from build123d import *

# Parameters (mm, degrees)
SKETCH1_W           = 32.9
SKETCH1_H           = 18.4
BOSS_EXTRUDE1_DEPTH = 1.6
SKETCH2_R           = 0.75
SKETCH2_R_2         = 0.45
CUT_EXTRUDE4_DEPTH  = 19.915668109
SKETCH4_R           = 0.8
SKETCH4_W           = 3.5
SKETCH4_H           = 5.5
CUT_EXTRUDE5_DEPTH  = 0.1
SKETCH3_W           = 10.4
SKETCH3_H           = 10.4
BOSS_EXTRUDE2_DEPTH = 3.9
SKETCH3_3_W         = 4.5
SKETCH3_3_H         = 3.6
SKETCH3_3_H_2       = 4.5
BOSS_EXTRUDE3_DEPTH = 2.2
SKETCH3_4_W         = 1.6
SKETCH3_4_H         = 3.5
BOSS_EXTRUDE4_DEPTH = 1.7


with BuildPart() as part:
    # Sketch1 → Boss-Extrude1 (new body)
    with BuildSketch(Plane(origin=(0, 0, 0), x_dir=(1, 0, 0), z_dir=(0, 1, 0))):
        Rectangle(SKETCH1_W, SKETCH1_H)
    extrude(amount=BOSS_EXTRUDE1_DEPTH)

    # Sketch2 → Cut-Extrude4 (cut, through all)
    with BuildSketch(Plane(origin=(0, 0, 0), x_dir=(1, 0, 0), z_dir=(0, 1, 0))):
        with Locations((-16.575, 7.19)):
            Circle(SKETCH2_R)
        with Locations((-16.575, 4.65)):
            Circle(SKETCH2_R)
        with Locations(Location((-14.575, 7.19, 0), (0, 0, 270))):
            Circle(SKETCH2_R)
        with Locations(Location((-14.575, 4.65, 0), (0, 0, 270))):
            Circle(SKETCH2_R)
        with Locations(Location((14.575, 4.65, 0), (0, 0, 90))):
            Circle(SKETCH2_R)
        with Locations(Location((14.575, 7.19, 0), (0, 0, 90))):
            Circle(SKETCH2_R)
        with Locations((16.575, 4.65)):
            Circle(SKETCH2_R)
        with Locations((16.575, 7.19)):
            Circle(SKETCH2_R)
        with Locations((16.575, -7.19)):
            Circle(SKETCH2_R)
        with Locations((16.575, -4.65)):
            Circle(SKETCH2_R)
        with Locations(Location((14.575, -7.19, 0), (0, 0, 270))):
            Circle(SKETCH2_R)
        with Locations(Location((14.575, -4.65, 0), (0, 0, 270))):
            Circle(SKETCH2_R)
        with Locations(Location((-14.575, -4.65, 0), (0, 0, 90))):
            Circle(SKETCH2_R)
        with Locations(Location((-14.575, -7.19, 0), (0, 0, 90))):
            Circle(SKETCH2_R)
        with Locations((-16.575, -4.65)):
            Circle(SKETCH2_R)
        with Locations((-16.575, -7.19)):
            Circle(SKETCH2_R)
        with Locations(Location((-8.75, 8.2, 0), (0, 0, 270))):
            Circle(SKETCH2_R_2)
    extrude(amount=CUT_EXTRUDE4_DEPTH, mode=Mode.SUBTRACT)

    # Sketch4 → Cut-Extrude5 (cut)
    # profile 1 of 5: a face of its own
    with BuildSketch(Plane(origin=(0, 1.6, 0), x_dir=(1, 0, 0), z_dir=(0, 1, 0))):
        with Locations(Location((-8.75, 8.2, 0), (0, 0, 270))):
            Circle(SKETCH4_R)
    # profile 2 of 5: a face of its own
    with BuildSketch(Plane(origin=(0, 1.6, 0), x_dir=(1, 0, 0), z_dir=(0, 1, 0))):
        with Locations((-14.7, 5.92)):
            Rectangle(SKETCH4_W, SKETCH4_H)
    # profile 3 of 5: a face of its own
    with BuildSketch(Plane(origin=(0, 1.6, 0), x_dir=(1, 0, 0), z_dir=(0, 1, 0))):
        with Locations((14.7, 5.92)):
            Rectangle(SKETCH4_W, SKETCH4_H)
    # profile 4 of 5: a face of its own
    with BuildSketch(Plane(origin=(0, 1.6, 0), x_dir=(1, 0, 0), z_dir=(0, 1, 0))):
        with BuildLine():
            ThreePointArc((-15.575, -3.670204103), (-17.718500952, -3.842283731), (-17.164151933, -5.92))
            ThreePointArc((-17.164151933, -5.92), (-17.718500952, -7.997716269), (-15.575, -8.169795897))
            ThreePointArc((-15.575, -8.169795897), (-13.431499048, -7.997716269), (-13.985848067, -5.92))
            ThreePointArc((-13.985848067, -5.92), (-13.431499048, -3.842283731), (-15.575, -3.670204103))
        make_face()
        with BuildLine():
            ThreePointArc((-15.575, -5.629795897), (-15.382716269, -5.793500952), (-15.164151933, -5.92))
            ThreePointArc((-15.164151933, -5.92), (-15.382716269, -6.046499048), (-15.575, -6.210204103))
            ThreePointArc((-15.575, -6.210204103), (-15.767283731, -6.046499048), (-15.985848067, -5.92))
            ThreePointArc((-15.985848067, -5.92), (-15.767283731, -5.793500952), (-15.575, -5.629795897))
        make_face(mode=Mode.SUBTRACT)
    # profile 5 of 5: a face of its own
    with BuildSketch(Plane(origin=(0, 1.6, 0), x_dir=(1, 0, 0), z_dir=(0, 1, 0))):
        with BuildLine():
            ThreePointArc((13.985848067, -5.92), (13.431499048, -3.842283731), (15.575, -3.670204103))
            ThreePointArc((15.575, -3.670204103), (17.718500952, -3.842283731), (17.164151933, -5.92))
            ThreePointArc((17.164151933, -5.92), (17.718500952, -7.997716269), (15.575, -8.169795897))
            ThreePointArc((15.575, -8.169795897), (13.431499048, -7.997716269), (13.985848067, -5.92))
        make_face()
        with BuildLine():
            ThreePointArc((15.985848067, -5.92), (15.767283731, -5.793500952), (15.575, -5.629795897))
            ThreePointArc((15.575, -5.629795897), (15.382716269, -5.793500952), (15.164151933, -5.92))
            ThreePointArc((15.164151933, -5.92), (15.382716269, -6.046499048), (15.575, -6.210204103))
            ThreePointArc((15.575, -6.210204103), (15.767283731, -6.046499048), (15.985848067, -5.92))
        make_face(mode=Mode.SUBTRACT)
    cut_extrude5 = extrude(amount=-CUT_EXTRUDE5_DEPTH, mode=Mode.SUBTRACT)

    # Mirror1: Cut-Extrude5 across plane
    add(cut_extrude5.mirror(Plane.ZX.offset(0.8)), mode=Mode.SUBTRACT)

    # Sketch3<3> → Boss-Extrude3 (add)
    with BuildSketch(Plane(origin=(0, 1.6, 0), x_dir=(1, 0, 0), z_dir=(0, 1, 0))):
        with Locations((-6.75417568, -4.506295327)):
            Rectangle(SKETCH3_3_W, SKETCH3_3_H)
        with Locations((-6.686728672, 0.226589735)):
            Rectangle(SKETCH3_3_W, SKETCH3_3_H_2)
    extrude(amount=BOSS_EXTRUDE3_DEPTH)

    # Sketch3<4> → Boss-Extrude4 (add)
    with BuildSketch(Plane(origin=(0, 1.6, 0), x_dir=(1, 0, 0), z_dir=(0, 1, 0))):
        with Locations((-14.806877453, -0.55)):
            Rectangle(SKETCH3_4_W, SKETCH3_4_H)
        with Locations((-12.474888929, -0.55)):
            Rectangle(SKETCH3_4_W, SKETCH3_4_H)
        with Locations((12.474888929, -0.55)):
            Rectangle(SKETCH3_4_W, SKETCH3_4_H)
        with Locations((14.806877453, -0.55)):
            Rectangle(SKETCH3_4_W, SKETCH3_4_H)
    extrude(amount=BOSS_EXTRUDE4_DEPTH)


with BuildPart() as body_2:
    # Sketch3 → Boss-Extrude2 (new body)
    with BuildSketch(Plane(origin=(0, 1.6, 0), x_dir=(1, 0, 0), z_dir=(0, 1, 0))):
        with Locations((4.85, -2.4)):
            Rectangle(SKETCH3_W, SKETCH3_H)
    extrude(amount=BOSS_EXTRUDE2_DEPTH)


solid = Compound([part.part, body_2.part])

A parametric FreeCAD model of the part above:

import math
import FreeCAD as App
import Part
import Sketcher
Q = App.Units.Quantity


def add_polygon(sketch, points):
    """Adds a closed chain of lines whose ends are joined by coincident constraints."""
    first, n = sketch.GeometryCount, len(points)
    for a, b in zip(points, points[1:] + points[:1]):
        sketch.addGeometry(Part.LineSegment(App.Vector(*a, 0), App.Vector(*b, 0)), False)
    for i in range(n):
        sketch.addConstraint(Sketcher.Constraint("Coincident", first + i, 2, first + (i + 1) % n, 1))

doc = App.newDocument("Part")
body = doc.addObject("PartDesign::Body", "Body")

# Sketch on XZ plane
sketch1 = doc.addObject("Sketcher::SketchObject", "Sketch")
body.addObject(sketch1)
sketch1.AttachmentSupport = (doc.XZ_Plane, [""])
sketch1.MapMode = "FlatFace"
add_polygon(sketch1, [(-16, -9), (-16, 9), (16, 9), (16, -9)])  # lines 0-3
sketch1.addConstraint([
    Sketcher.Constraint("Vertical", 0),
    Sketcher.Constraint("Horizontal", 1),
    Sketcher.Constraint("Vertical", 2),
    Sketcher.Constraint("Horizontal", 3),
    Sketcher.Constraint("Symmetric", 0, 2, 2, 2, -1, 1),
    Sketcher.Constraint("DistanceX", 1, 1, 1, 2, Q("32.9 mm")),
    Sketcher.Constraint("DistanceY", 0, 1, 0, 2, Q("18.4 mm")),
])
pad1 = doc.addObject("PartDesign::Pad", "Pad")
body.addObject(pad1)
pad1.Profile = sketch1
pad1.Length = 1.6
pad1.Reversed = True

# Sketch on XZ plane
sketch2 = doc.addObject("Sketcher::SketchObject", "Sketch001")
body.addObject(sketch2)
sketch2.AttachmentSupport = (doc.XZ_Plane, [""])
sketch2.MapMode = "FlatFace"
sketch2.addGeometry([
    Part.Circle(App.Vector(-16.57, -7.19, 0), App.Vector(0, 0, 1), 0.75),  # 0
    Part.Circle(App.Vector(-16.57, -4.65, 0), App.Vector(0, 0, 1), 0.75),  # 1
    Part.Circle(App.Vector(-14.57, -7.19, 0), App.Vector(0, 0, 1), 0.75),  # 2
    Part.Circle(App.Vector(-14.57, -4.65, 0), App.Vector(0, 0, 1), 0.75),  # 3
    Part.Circle(App.Vector(14.57, -4.65, 0), App.Vector(0, 0, 1), 0.75),  # 4
    Part.Circle(App.Vector(14.57, -7.19, 0), App.Vector(0, 0, 1), 0.75),  # 5
    Part.Circle(App.Vector(16.57, -4.65, 0), App.Vector(0, 0, 1), 0.75),  # 6
    Part.Circle(App.Vector(16.57, -7.19, 0), App.Vector(0, 0, 1), 0.75),  # 7
    Part.Circle(App.Vector(16.57, 7.19, 0), App.Vector(0, 0, 1), 0.75),  # 8
    Part.Circle(App.Vector(16.57, 4.65, 0), App.Vector(0, 0, 1), 0.75),  # 9
    Part.Circle(App.Vector(14.57, 7.19, 0), App.Vector(0, 0, 1), 0.75),  # 10
    Part.Circle(App.Vector(14.57, 4.65, 0), App.Vector(0, 0, 1), 0.75),  # 11
    Part.Circle(App.Vector(-14.57, 4.65, 0), App.Vector(0, 0, 1), 0.75),  # 12
    Part.Circle(App.Vector(-14.57, 7.19, 0), App.Vector(0, 0, 1), 0.75),  # 13
    Part.Circle(App.Vector(-16.57, 4.65, 0), App.Vector(0, 0, 1), 0.75),  # 14
    Part.Circle(App.Vector(-16.57, 7.19, 0), App.Vector(0, 0, 1), 0.75),  # 15
    Part.Circle(App.Vector(-8.75, -8.2, 0), App.Vector(0, 0, 1), 0.45),  # 16
], False)
sketch2.addConstraint([
    Sketcher.Constraint("Equal", 0, 1),
    Sketcher.Constraint("Equal", 1, 2),
    Sketcher.Constraint("Equal", 2, 3),
    Sketcher.Constraint("Equal", 3, 4),
    Sketcher.Constraint("Equal", 4, 5),
    Sketcher.Constraint("Equal", 5, 6),
    Sketcher.Constraint("Equal", 6, 7),
    Sketcher.Constraint("Equal", 7, 8),
    Sketcher.Constraint("Equal", 8, 9),
    Sketcher.Constraint("Equal", 9, 10),
    Sketcher.Constraint("Equal", 10, 11),
    Sketcher.Constraint("Equal", 11, 12),
    Sketcher.Constraint("Equal", 12, 13),
    Sketcher.Constraint("Equal", 13, 14),
    Sketcher.Constraint("Equal", 14, 15),
    Sketcher.Constraint("Symmetric", 0, 3, 8, 3, -1, 1),
    Sketcher.Constraint("Symmetric", 1, 3, 9, 3, -1, 1),
    Sketcher.Constraint("Symmetric", 2, 3, 10, 3, -1, 1),
    Sketcher.Constraint("Symmetric", 3, 3, 11, 3, -1, 1),
    Sketcher.Constraint("Symmetric", 4, 3, 12, 3, -1, 1),
    Sketcher.Constraint("Symmetric", 5, 3, 13, 3, -1, 1),
    Sketcher.Constraint("Symmetric", 6, 3, 14, 3, -1, 1),
    Sketcher.Constraint("Symmetric", 7, 3, 15, 3, -1, 1),
    Sketcher.Constraint("Symmetric", 3, 3, 4, 3, -2),
    Sketcher.Constraint("Symmetric", 2, 3, 5, 3, -2),
    Sketcher.Constraint("Symmetric", 1, 3, 6, 3, -2),
    Sketcher.Constraint("Symmetric", 0, 3, 7, 3, -2),
    Sketcher.Constraint("Horizontal", 0, 3, 2, 3),
    Sketcher.Constraint("Horizontal", 1, 3, 3, 3),
    Sketcher.Constraint("Vertical", 0, 3, 1, 3),
    Sketcher.Constraint("Vertical", 2, 3, 3, 3),
    Sketcher.Constraint("Diameter", 0, Q("1.5 mm")),
    Sketcher.Constraint("Diameter", 16, Q("0.9 mm")),
    Sketcher.Constraint("DistanceX", 0, 3, 2, 3, Q("2 mm")),
    Sketcher.Constraint("DistanceY", 16, 3, -1, 1, Q("8.2 mm")),
    Sketcher.Constraint("DistanceY", 6, 3, 9, 3, Q("9.3 mm")),
    Sketcher.Constraint("DistanceY", 0, 3, -1, 1, Q("7.19 mm")),
    Sketcher.Constraint("DistanceX", 16, 3, -1, 1, Q("8.75 mm")),
    Sketcher.Constraint("DistanceX", 3, 3, 4, 3, Q("29.15 mm")),
])
pocket1 = doc.addObject("PartDesign::Pocket", "Pocket")
body.addObject(pocket1)
pocket1.Profile = sketch2
pocket1.Type = "ThroughAll"

# Sketch on XZ plane
sketch3 = doc.addObject("Sketcher::SketchObject", "Sketch002")
body.addObject(sketch3)
sketch3.AttachmentSupport = (doc.XZ_Plane, [""])
sketch3.MapMode = "FlatFace"
sketch3.AttachmentOffset = App.Placement(App.Vector(0, 0, -1.6), App.Rotation())
sketch3.addGeometry(Part.Circle(App.Vector(-8.8, -8.2, 0), App.Vector(0, 0, 1), 0.8), False)  # 0
add_polygon(sketch3, [(-16.4, -8.7), (-16.4, -3.2), (-12.9, -3.2), (-12.9, -8.7)])  # lines 1-4
add_polygon(sketch3, [(12.9, -8.7), (12.9, -3.2), (16.4, -3.2), (16.4, -8.7)])  # lines 5-8
sketch3.addGeometry(Part.ArcOfCircle(Part.Circle(App.Vector(-16.6, 4.7, 0), App.Vector(0, 0, 1), 1.4), math.radians(115), math.radians(316)), False)  # 9
sketch3.addGeometry(Part.ArcOfCircle(Part.Circle(App.Vector(-16.6, 7.2, 0), App.Vector(0, 0, 1), 1.4), math.radians(44), math.radians(245)), False)  # 10
sketch3.addGeometry(Part.ArcOfCircle(Part.Circle(App.Vector(-14.6, 7.2, 0), App.Vector(0, 0, 1), 1.4), math.radians(-65), math.radians(136)), False)  # 11
sketch3.addGeometry(Part.ArcOfCircle(Part.Circle(App.Vector(-14.6, 4.7, 0), App.Vector(0, 0, 1), 1.4), math.radians(-136), math.radians(65)), False)  # 12
sketch3.addGeometry(Part.ArcOfCircle(Part.Circle(App.Vector(-16.6, 4.6, 0), App.Vector(0, 0, 1), 1.4), math.radians(44), math.radians(65)), False)  # 13
sketch3.addGeometry(Part.ArcOfCircle(Part.Circle(App.Vector(-14.6, 4.6, 0), App.Vector(0, 0, 1), 1.4), math.radians(115), math.radians(136)), False)  # 14
sketch3.addGeometry(Part.ArcOfCircle(Part.Circle(App.Vector(-14.6, 7.2, 0), App.Vector(0, 0, 1), 1.4), math.radians(-136), math.radians(-115)), False)  # 15
sketch3.addGeometry(Part.ArcOfCircle(Part.Circle(App.Vector(-16.6, 7.2, 0), App.Vector(0, 0, 1), 1.4), math.radians(-65), math.radians(-44)), False)  # 16
sketch3.addGeometry(Part.ArcOfCircle(Part.Circle(App.Vector(14.6, 4.7, 0), App.Vector(0, 0, 1), 1.4), math.radians(115), math.radians(316)), False)  # 17
sketch3.addGeometry(Part.ArcOfCircle(Part.Circle(App.Vector(14.6, 7.2, 0), App.Vector(0, 0, 1), 1.4), math.radians(44), math.radians(245)), False)  # 18
sketch3.addGeometry(Part.ArcOfCircle(Part.Circle(App.Vector(16.6, 7.2, 0), App.Vector(0, 0, 1), 1.4), math.radians(-65), math.radians(136)), False)  # 19
sketch3.addGeometry(Part.ArcOfCircle(Part.Circle(App.Vector(16.6, 4.7, 0), App.Vector(0, 0, 1), 1.4), math.radians(-136), math.radians(65)), False)  # 20
sketch3.addGeometry(Part.ArcOfCircle(Part.Circle(App.Vector(16.6, 7.2, 0), App.Vector(0, 0, 1), 1.4), math.radians(-136), math.radians(-115)), False)  # 21
sketch3.addGeometry(Part.ArcOfCircle(Part.Circle(App.Vector(14.6, 7.2, 0), App.Vector(0, 0, 1), 1.4), math.radians(-65), math.radians(-44)), False)  # 22
sketch3.addGeometry(Part.ArcOfCircle(Part.Circle(App.Vector(14.6, 4.6, 0), App.Vector(0, 0, 1), 1.4), math.radians(44), math.radians(65)), False)  # 23
sketch3.addGeometry(Part.ArcOfCircle(Part.Circle(App.Vector(16.6, 4.6, 0), App.Vector(0, 0, 1), 1.4), math.radians(115), math.radians(136)), False)  # 24
sketch3.addConstraint([
    Sketcher.Constraint("Coincident", 9, 1, 10, 2),
    Sketcher.Constraint("Coincident", 10, 1, 11, 2),
    Sketcher.Constraint("Coincident", 11, 1, 12, 2),
    Sketcher.Constraint("Coincident", 12, 1, 9, 2),
    Sketcher.Constraint("Coincident", 13, 1, 14, 2),
    Sketcher.Constraint("Coincident", 14, 1, 15, 2),
    Sketcher.Constraint("Coincident", 15, 1, 16, 2),
    Sketcher.Constraint("Coincident", 16, 1, 13, 2),
    Sketcher.Constraint("Coincident", 17, 1, 18, 2),
    Sketcher.Constraint("Coincident", 18, 1, 19, 2),
    Sketcher.Constraint("Coincident", 19, 1, 20, 2),
    Sketcher.Constraint("Coincident", 20, 1, 17, 2),
    Sketcher.Constraint("Coincident", 21, 1, 22, 2),
    Sketcher.Constraint("Coincident", 22, 1, 23, 2),
    Sketcher.Constraint("Coincident", 23, 1, 24, 2),
    Sketcher.Constraint("Coincident", 24, 1, 21, 2),
    Sketcher.Constraint("Vertical", 1),
    Sketcher.Constraint("Horizontal", 2),
    Sketcher.Constraint("Vertical", 3),
    Sketcher.Constraint("Horizontal", 4),
    Sketcher.Constraint("Vertical", 5),
    Sketcher.Constraint("Horizontal", 6),
    Sketcher.Constraint("Vertical", 7),
    Sketcher.Constraint("Horizontal", 8),
    Sketcher.Constraint("Coincident", 13, 3, 9, 3),
    Sketcher.Constraint("Coincident", 14, 3, 12, 3),
    Sketcher.Constraint("Coincident", 15, 3, 11, 3),
    Sketcher.Constraint("Coincident", 16, 3, 10, 3),
    Sketcher.Constraint("Coincident", 21, 3, 19, 3),
    Sketcher.Constraint("Coincident", 22, 3, 18, 3),
    Sketcher.Constraint("Coincident", 23, 3, 17, 3),
    Sketcher.Constraint("Coincident", 24, 3, 20, 3),
    Sketcher.Constraint("Equal", 9, 10),
    Sketcher.Constraint("Equal", 10, 11),
    Sketcher.Constraint("Equal", 11, 12),
    Sketcher.Constraint("Equal", 12, 13),
    Sketcher.Constraint("Equal", 13, 14),
    Sketcher.Constraint("Equal", 14, 15),
    Sketcher.Constraint("Equal", 15, 16),
    Sketcher.Constraint("Equal", 16, 17),
    Sketcher.Constraint("Equal", 17, 18),
    Sketcher.Constraint("Equal", 18, 19),
    Sketcher.Constraint("Equal", 19, 20),
    Sketcher.Constraint("Equal", 20, 21),
    Sketcher.Constraint("Equal", 21, 22),
    Sketcher.Constraint("Equal", 22, 23),
    Sketcher.Constraint("Equal", 23, 24),
    Sketcher.Constraint("Symmetric", 12, 3, 17, 3, -2),
    Sketcher.Constraint("Symmetric", 11, 3, 18, 3, -2),
    Sketcher.Constraint("Symmetric", 10, 3, 19, 3, -2),
    Sketcher.Constraint("Symmetric", 9, 3, 20, 3, -2),
    Sketcher.Constraint("Symmetric", 2, 2, 5, 2, -2),
    Sketcher.Constraint("Symmetric", 4, 2, 7, 2, -2),
    Sketcher.Constraint("Horizontal", 10, 3, 11, 3),
    Sketcher.Constraint("Horizontal", 9, 3, 12, 3),
    Sketcher.Constraint("Horizontal", 9, 1, 11, 1),
    Sketcher.Constraint("Horizontal", 11, 1, 14, 1),
    Sketcher.Constraint("Diameter", 0, Q("1.6 mm")),
    Sketcher.Constraint("Radius", 9, Q("1.4 mm")),
    Sketcher.Constraint("DistanceX", 2, 1, 2, 2, Q("3.5 mm")),
    Sketcher.Constraint("DistanceY", 1, 1, 1, 2, Q("5.5 mm")),
    Sketcher.Constraint("DistanceX", 10, 3, 11, 3, Q("2 mm")),
    Sketcher.Constraint("DistanceY", 0, 3, -1, 1, Q("8.2 mm")),
    Sketcher.Constraint("DistanceX", 1, 2, 0, 3, Q("7.7 mm")),
    Sketcher.Constraint("DistanceX", 0, 3, -1, 1, Q("8.75 mm")),
    Sketcher.Constraint("DistanceY", -1, 1, 9, 3, Q("4.65 mm")),
    Sketcher.Constraint("DistanceY", -1, 1, 10, 3, Q("7.19 mm")),
    Sketcher.Constraint("DistanceY", 1, 2, -1, 1, Q("3.17 mm")),
    Sketcher.Constraint("DistanceX", 14, 3, 17, 3, Q("29.15 mm")),
])
pocket2 = doc.addObject("PartDesign::Pocket", "Pocket001")
body.addObject(pocket2)
pocket2.Profile = sketch3
pocket2.Length = 0.1
pocket2.Reversed = True
doc.recompute()

datumplane = doc.addObject("PartDesign::Plane", "DatumPlane")
body.addObject(datumplane)
datumplane.AttachmentSupport = (doc.XZ_Plane, [""])
datumplane.MapMode = "FlatFace"
datumplane.AttachmentOffset = App.Placement(App.Vector(0, 0, -0.8), App.Rotation())
mirrored = doc.addObject("PartDesign::Mirrored", "Mirrored")
body.addObject(mirrored)
mirrored.Originals = [pocket2]
mirrored.MirrorPlane = (datumplane, [""])
body.Tip = mirrored

# Sketch on XZ plane
sketch4 = doc.addObject("Sketcher::SketchObject", "Sketch003")
body.addObject(sketch4)
sketch4.AttachmentSupport = (doc.XZ_Plane, [""])
sketch4.MapMode = "FlatFace"
sketch4.AttachmentOffset = App.Placement(App.Vector(0, 0, -1.6), App.Rotation())
add_polygon(sketch4, [(-9, 2.7), (-9, 6.3), (-4.5, 6.3), (-4.5, 2.7)])  # lines 0-3
add_polygon(sketch4, [(-8.9, -2.5), (-8.9, 2), (-4.4, 2), (-4.4, -2.5)])  # lines 4-7
sketch4.addConstraint([
    Sketcher.Constraint("Vertical", 0),
    Sketcher.Constraint("Horizontal", 1),
    Sketcher.Constraint("Vertical", 2),
    Sketcher.Constraint("Horizontal", 3),
    Sketcher.Constraint("Vertical", 4),
    Sketcher.Constraint("Horizontal", 5),
    Sketcher.Constraint("Vertical", 6),
    Sketcher.Constraint("Horizontal", 7),
    Sketcher.Constraint("Equal", 3, 5),
    Sketcher.Constraint("Equal", 7, 4),
    Sketcher.Constraint("DistanceX", 1, 1, 1, 2, Q("4.5 mm")),
    Sketcher.Constraint("DistanceY", 0, 1, 0, 2, Q("3.6 mm")),
    Sketcher.Constraint("DistanceX", 4, 2, -1, 1, Q("8.936729 mm")),
    Sketcher.Constraint("DistanceY", -1, 1, 4, 2, Q("2.02341 mm")),
    Sketcher.Constraint("DistanceX", 0, 2, -1, 1, Q("9.004176 mm")),
    Sketcher.Constraint("DistanceY", -1, 1, 0, 2, Q("6.306295 mm")),
])
pad2 = doc.addObject("PartDesign::Pad", "Pad001")
body.addObject(pad2)
pad2.Profile = sketch4
pad2.Length = 2.2
pad2.Reversed = True

# Sketch on XZ plane
sketch5 = doc.addObject("Sketcher::SketchObject", "Sketch004")
body.addObject(sketch5)
sketch5.AttachmentSupport = (doc.XZ_Plane, [""])
sketch5.MapMode = "FlatFace"
sketch5.AttachmentOffset = App.Placement(App.Vector(0, 0, -1.6), App.Rotation())
add_polygon(sketch5, [(-15.6, -1.2), (-15.6, 2.3), (-14, 2.3), (-14, -1.2)])  # lines 0-3
add_polygon(sketch5, [(-13.3, -1.2), (-13.3, 2.3), (-11.7, 2.3), (-11.7, -1.2)])  # lines 4-7
add_polygon(sketch5, [(11.7, -1.2), (11.7, 2.3), (13.3, 2.3), (13.3, -1.2)])  # lines 8-11
add_polygon(sketch5, [(14, -1.2), (14, 2.3), (15.6, 2.3), (15.6, -1.2)])  # lines 12-15
sketch5.addConstraint([
    Sketcher.Constraint("Vertical", 0),
    Sketcher.Constraint("Horizontal", 1),
    Sketcher.Constraint("Vertical", 2),
    Sketcher.Constraint("Horizontal", 3),
    Sketcher.Constraint("Vertical", 4),
    Sketcher.Constraint("Horizontal", 5),
    Sketcher.Constraint("Vertical", 6),
    Sketcher.Constraint("Horizontal", 7),
    Sketcher.Constraint("Vertical", 8),
    Sketcher.Constraint("Horizontal", 9),
    Sketcher.Constraint("Vertical", 10),
    Sketcher.Constraint("Horizontal", 11),
    Sketcher.Constraint("Vertical", 12),
    Sketcher.Constraint("Horizontal", 13),
    Sketcher.Constraint("Vertical", 14),
    Sketcher.Constraint("Horizontal", 15),
    Sketcher.Constraint("Symmetric", 5, 2, 8, 2, -2),
    Sketcher.Constraint("Symmetric", 7, 2, 10, 2, -2),
    Sketcher.Constraint("Symmetric", 1, 2, 12, 2, -2),
    Sketcher.Constraint("Symmetric", 3, 2, 14, 2, -2),
    Sketcher.Constraint("Horizontal", 1, 2, 4, 2),
    Sketcher.Constraint("Horizontal", 3, 2, 6, 2),
    Sketcher.Constraint("Equal", 3, 5),
    Sketcher.Constraint("DistanceX", 1, 1, 1, 2, Q("1.6 mm")),
    Sketcher.Constraint("DistanceY", 0, 1, 0, 2, Q("3.5 mm")),
    Sketcher.Constraint("DistanceY", -1, 1, 0, 2, Q("2.3 mm")),
    Sketcher.Constraint("DistanceX", 4, 2, -1, 1, Q("13.274889 mm")),
    Sketcher.Constraint("DistanceX", 1, 2, 4, 2, Q("0.731989 mm")),
])
pad3 = doc.addObject("PartDesign::Pad", "Pad002")
body.addObject(pad3)
pad3.Profile = sketch5
pad3.Length = 1.7
pad3.Reversed = True
body2 = doc.addObject("PartDesign::Body", "Body001")

# Sketch on XZ plane
sketch6 = doc.addObject("Sketcher::SketchObject", "Sketch005")
body2.addObject(sketch6)
sketch6.AttachmentSupport = (doc.getObject("XZ_Plane001"), [""])
sketch6.MapMode = "FlatFace"
sketch6.AttachmentOffset = App.Placement(App.Vector(0, 0, -1.6), App.Rotation())
add_polygon(sketch6, [(0, -3), (0, 8), (10, 8), (10, -3)])  # lines 0-3
sketch6.addConstraint([
    Sketcher.Constraint("Vertical", 0),
    Sketcher.Constraint("Horizontal", 1),
    Sketcher.Constraint("Vertical", 2),
    Sketcher.Constraint("Horizontal", 3),
    Sketcher.Constraint("Equal", 3, 0),
    Sketcher.Constraint("DistanceX", 1, 1, 1, 2, Q("10.4 mm")),
    Sketcher.Constraint("DistanceY", -1, 1, 0, 2, Q("7.6 mm")),
    Sketcher.Constraint("DistanceX", 0, 2, -1, 1, Q("0.35 mm")),
])
pad4 = doc.addObject("PartDesign::Pad", "Pad003")
body2.addObject(pad4)
pad4.Profile = sketch6
pad4.Length = 3.9
pad4.Reversed = True

doc.recompute()
